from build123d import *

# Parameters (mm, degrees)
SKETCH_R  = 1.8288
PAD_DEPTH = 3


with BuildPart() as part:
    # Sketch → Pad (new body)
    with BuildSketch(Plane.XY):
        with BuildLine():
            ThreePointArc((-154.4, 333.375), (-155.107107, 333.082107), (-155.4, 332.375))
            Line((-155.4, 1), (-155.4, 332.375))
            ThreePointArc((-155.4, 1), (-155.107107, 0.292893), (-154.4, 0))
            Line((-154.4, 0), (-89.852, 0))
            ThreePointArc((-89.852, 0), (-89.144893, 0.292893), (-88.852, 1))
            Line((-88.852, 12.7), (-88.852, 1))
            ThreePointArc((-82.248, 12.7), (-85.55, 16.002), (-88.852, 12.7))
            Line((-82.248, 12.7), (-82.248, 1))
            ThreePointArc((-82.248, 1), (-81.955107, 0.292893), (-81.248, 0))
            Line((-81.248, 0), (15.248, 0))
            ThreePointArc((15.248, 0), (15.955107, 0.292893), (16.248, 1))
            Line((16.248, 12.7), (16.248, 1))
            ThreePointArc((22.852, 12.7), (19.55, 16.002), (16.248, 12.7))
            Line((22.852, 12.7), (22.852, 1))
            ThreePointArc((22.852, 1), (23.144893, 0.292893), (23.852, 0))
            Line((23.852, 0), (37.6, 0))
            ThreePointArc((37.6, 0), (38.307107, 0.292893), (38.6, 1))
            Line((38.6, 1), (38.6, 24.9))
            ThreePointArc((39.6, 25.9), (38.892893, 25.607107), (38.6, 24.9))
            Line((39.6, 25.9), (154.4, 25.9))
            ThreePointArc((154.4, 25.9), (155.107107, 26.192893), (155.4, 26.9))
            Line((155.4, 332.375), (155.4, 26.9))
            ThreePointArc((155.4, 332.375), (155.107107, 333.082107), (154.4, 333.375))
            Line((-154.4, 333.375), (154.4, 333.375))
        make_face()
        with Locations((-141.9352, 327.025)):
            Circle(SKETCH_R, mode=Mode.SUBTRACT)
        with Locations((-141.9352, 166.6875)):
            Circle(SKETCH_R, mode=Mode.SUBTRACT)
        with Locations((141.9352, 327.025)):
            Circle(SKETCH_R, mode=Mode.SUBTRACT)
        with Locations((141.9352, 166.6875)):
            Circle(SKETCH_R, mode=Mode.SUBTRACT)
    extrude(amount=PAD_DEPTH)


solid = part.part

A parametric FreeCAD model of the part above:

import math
import FreeCAD as App
import Part
import Sketcher
from FreeCAD import Vector
Q = App.Units.Quantity

doc = App.newDocument("Part")
params = doc.addObject("Spreadsheet::Sheet", "Params")
for row, (alias, value) in enumerate([
    ("sketch1_radius", "0.999999 mm"),
    ("sketch1_width", "114.8 mm"),
    ("sketch1_width2", "308.8 mm"),
    ("sketch1_height", "11.7 mm"),
    ("sketch1_height2", "23.9 mm"),
    ("pad1_length", "3 mm"),
], start=1):
    params.set(f"A{row}", alias)
    params.set(f"B{row}", "=" + value)
    params.setAlias(f"B{row}", alias)

body = doc.addObject("PartDesign::Body", "Body")

# Sketch on XY plane
sketch1 = body.newObject("Sketcher::SketchObject", "Sketch")
sketch1.AttachmentSupport = (doc.getObject("XY_Plane"), [""])
sketch1.MapMode = "FlatFace"
sketch1.addGeometry([
    Part.ArcOfCircle(Part.Circle(Vector(-154.400001, 332.375001, 0), Vector(0, 0, 1), 0.999999), math.radians(89.999957), math.radians(180.000043)),  # 0
    Part.LineSegment(Vector(-155.4, 332.375, 0), Vector(-155.4, 1, 0)),  # 1
    Part.ArcOfCircle(Part.Circle(Vector(-154.400001, 0.999999, 0), Vector(0, 0, 1), 0.999999), math.radians(179.999957), math.radians(270.000043)),  # 2
    Part.LineSegment(Vector(-154.4, 0, 0), Vector(-89.852, 0, 0)),  # 3
    Part.ArcOfCircle(Part.Circle(Vector(-89.851999, 0.999999, 0), Vector(0, 0, 1), 0.999999), math.radians(-90.000043), math.radians(0.000043)),  # 4
    Part.LineSegment(Vector(-88.852, 1, 0), Vector(-88.852, 12.7, 0)),  # 5
    Part.ArcOfCircle(Part.Circle(Vector(-85.55, 12.7, 0), Vector(0, 0, 1), 3.302), math.radians(0), math.radians(180)),  # 6
    Part.LineSegment(Vector(-82.248, 12.7, 0), Vector(-82.248, 1, 0)),  # 7
    Part.ArcOfCircle(Part.Circle(Vector(-81.248001, 0.999999, 0), Vector(0, 0, 1), 0.999999), math.radians(179.999957), math.radians(270.000043)),  # 8
    Part.LineSegment(Vector(-81.248, 0, 0), Vector(15.248, 0, 0)),  # 9
    Part.ArcOfCircle(Part.Circle(Vector(15.248001, 0.999999, 0), Vector(0, 0, 1), 0.999999), math.radians(-90.000043), math.radians(0.000043)),  # 10
    Part.LineSegment(Vector(16.248, 1, 0), Vector(16.248, 12.7, 0)),  # 11
    Part.ArcOfCircle(Part.Circle(Vector(19.55, 12.7, 0), Vector(0, 0, 1), 3.302), math.radians(0), math.radians(180)),  # 12
    Part.LineSegment(Vector(22.852, 12.7, 0), Vector(22.852, 1, 0)),  # 13
    Part.ArcOfCircle(Part.Circle(Vector(23.851999, 0.999999, 0), Vector(0, 0, 1), 0.999999), math.radians(179.999957), math.radians(270.000043)),  # 14
    Part.LineSegment(Vector(23.852, 0, 0), Vector(37.6, 0, 0)),  # 15
    Part.ArcOfCircle(Part.Circle(Vector(37.600001, 0.999999, 0), Vector(0, 0, 1), 0.999999), math.radians(-90.000043), math.radians(0.000043)),  # 16
    Part.LineSegment(Vector(38.6, 1, 0), Vector(38.6, 24.9, 0)),  # 17
    Part.ArcOfCircle(Part.Circle(Vector(39.599999, 24.900001, 0), Vector(0, 0, 1), 0.999999), math.radians(89.999957), math.radians(180.000043)),  # 18
    Part.LineSegment(Vector(39.6, 25.9, 0), Vector(154.4, 25.9, 0)),  # 19
    Part.ArcOfCircle(Part.Circle(Vector(154.400001, 26.899999, 0), Vector(0, 0, 1), 0.999999), math.radians(-90.000043), math.radians(0.000043)),  # 20
    Part.LineSegment(Vector(155.4, 26.9, 0), Vector(155.4, 332.375, 0)),  # 21
    Part.ArcOfCircle(Part.Circle(Vector(154.400001, 332.375001, 0), Vector(0, 0, 1), 0.999999), math.radians(-0.000043), math.radians(90.000043)),  # 22
    Part.LineSegment(Vector(154.4, 333.375, 0), Vector(-154.4, 333.375, 0)),  # 23
    Part.Circle(Vector(-141.9352, 166.6875, 0), Vector(0, 0, 1), 1.8288),  # 24
    Part.Circle(Vector(141.9352, 166.6875, 0), Vector(0, 0, 1), 1.8288),  # 25
    Part.Circle(Vector(-141.9352, 327.025, 0), Vector(0, 0, 1), 1.8288),  # 26
    Part.Circle(Vector(141.9352, 327.025, 0), Vector(0, 0, 1), 1.8288),  # 27
], False)
sketch1.addConstraint([
    Sketcher.Constraint("Tangent", 0, 2, 1, 1),
    Sketcher.Constraint("Tangent", 1, 2, 2, 1),
    Sketcher.Constraint("Tangent", 2, 2, 3, 1),
    Sketcher.Constraint("Tangent", 3, 2, 4, 1),
    Sketcher.Constraint("Tangent", 4, 2, 5, 1),
    Sketcher.Constraint("Tangent", 5, 2, 6, 2),
    Sketcher.Constraint("Tangent", 6, 1, 7, 1),
    Sketcher.Constraint("Tangent", 7, 2, 8, 1),
    Sketcher.Constraint("Tangent", 8, 2, 9, 1),
    Sketcher.Constraint("Tangent", 9, 2, 10, 1),
    Sketcher.Constraint("Tangent", 10, 2, 11, 1),
    Sketcher.Constraint("Tangent", 11, 2, 12, 2),
    Sketcher.Constraint("Tangent", 12, 1, 13, 1),
    Sketcher.Constraint("Tangent", 13, 2, 14, 1),
    Sketcher.Constraint("Tangent", 14, 2, 15, 1),
    Sketcher.Constraint("Tangent", 15, 2, 16, 1),
    Sketcher.Constraint("Tangent", 16, 2, 17, 1),
    Sketcher.Constraint("Tangent", 17, 2, 18, 2),
    Sketcher.Constraint("Tangent", 18, 1, 19, 1),
    Sketcher.Constraint("Tangent", 19, 2, 20, 1),
    Sketcher.Constraint("Tangent", 20, 2, 21, 1),
    Sketcher.Constraint("Tangent", 21, 2, 22, 1),
    Sketcher.Constraint("Tangent", 22, 2, 23, 1),
    Sketcher.Constraint("Tangent", 23, 2, 0, 1),
    Sketcher.Constraint("Vertical", 1),
    Sketcher.Constraint("Horizontal", 3),
    Sketcher.Constraint("Vertical", 5),
    Sketcher.Constraint("Vertical", 7),
    Sketcher.Constraint("Horizontal", 9),
    Sketcher.Constraint("Vertical", 11),
    Sketcher.Constraint("Vertical", 13),
    Sketcher.Constraint("Horizontal", 15),
    Sketcher.Constraint("Vertical", 17),
    Sketcher.Constraint("Horizontal", 19),
    Sketcher.Constraint("Vertical", 21),
    Sketcher.Constraint("Horizontal", 23),
    Sketcher.Constraint("Equal", 0, 2),
    Sketcher.Constraint("Equal", 2, 4),
    Sketcher.Constraint("Equal", 4, 8),
    Sketcher.Constraint("Equal", 8, 10),
    Sketcher.Constraint("Equal", 6, 12),
    Sketcher.Constraint("Equal", 10, 14),
    Sketcher.Constraint("Equal", 14, 16),
    Sketcher.Constraint("Equal", 16, 18),
    Sketcher.Constraint("Equal", 18, 20),
    Sketcher.Constraint("Equal", 20, 22),
    Sketcher.Constraint("Equal", 24, 25),
    Sketcher.Constraint("Equal", 25, 26),
    Sketcher.Constraint("Equal", 26, 27),
    Sketcher.Constraint("Symmetric", 24, 3, 25, 3, -2),
    Sketcher.Constraint("Symmetric", 26, 3, 27, 3, -2),
    Sketcher.Constraint("PointOnObject", 2, 2, -1),
    Sketcher.Constraint("PointOnObject", 8, 2, -1),
    Sketcher.Constraint("PointOnObject", 14, 2, -1),
    Sketcher.Constraint("Horizontal", 6, 3, 12, 3),
    Sketcher.Constraint("Vertical", 24, 3, 26, 3),
    Sketcher.Constraint("Radius", 0, Q("0.999999 mm")),
    Sketcher.Constraint("DistanceX", 19, 1, 19, 2, Q("114.8 mm")),
    Sketcher.Constraint("DistanceX", 23, 2, 23, 1, Q("308.8 mm")),
    Sketcher.Constraint("DistanceY", 5, 1, 5, 2, Q("11.7 mm")),
    Sketcher.Constraint("DistanceY", 17, 1, 17, 2, Q("23.9 mm")),
    Sketcher.Constraint("Radius", 6, Q("3.302 mm")),
    Sketcher.Constraint("Diameter", 24, Q("3.6576 mm")),
    Sketcher.Constraint("DistanceX", 0, 3, -1, 1, Q("154.400001 mm")),
    Sketcher.Constraint("DistanceX", 4, 3, 10, 3, Q("105.1 mm")),
    Sketcher.Constraint("DistanceX", 3, 1, 3, 2, Q("64.548 mm")),
    Sketcher.Constraint("DistanceY", 1, 2, 1, 1, Q("331.375 mm")),
    Sketcher.Constraint("DistanceY", 26, 3, 0, 3, Q("5.350001 mm")),
    Sketcher.Constraint("DistanceX", 24, 3, -1, 1, Q("141.9352 mm")),
    Sketcher.Constraint("DistanceY", -1, 1, 24, 3, Q("166.6875 mm")),
])
sketch1.setExpression("Constraints[56]", "Params.sketch1_radius")
sketch1.setExpression("Constraints[57]", "Params.sketch1_width")
sketch1.setExpression("Constraints[58]", "Params.sketch1_width2")
sketch1.setExpression("Constraints[59]", "Params.sketch1_height")
sketch1.setExpression("Constraints[60]", "Params.sketch1_height2")
pad1 = body.newObject("PartDesign::Pad", "Pad")
pad1.Profile = sketch1
pad1.setExpression("Length", "Params.pad1_length")

doc.recompute()
